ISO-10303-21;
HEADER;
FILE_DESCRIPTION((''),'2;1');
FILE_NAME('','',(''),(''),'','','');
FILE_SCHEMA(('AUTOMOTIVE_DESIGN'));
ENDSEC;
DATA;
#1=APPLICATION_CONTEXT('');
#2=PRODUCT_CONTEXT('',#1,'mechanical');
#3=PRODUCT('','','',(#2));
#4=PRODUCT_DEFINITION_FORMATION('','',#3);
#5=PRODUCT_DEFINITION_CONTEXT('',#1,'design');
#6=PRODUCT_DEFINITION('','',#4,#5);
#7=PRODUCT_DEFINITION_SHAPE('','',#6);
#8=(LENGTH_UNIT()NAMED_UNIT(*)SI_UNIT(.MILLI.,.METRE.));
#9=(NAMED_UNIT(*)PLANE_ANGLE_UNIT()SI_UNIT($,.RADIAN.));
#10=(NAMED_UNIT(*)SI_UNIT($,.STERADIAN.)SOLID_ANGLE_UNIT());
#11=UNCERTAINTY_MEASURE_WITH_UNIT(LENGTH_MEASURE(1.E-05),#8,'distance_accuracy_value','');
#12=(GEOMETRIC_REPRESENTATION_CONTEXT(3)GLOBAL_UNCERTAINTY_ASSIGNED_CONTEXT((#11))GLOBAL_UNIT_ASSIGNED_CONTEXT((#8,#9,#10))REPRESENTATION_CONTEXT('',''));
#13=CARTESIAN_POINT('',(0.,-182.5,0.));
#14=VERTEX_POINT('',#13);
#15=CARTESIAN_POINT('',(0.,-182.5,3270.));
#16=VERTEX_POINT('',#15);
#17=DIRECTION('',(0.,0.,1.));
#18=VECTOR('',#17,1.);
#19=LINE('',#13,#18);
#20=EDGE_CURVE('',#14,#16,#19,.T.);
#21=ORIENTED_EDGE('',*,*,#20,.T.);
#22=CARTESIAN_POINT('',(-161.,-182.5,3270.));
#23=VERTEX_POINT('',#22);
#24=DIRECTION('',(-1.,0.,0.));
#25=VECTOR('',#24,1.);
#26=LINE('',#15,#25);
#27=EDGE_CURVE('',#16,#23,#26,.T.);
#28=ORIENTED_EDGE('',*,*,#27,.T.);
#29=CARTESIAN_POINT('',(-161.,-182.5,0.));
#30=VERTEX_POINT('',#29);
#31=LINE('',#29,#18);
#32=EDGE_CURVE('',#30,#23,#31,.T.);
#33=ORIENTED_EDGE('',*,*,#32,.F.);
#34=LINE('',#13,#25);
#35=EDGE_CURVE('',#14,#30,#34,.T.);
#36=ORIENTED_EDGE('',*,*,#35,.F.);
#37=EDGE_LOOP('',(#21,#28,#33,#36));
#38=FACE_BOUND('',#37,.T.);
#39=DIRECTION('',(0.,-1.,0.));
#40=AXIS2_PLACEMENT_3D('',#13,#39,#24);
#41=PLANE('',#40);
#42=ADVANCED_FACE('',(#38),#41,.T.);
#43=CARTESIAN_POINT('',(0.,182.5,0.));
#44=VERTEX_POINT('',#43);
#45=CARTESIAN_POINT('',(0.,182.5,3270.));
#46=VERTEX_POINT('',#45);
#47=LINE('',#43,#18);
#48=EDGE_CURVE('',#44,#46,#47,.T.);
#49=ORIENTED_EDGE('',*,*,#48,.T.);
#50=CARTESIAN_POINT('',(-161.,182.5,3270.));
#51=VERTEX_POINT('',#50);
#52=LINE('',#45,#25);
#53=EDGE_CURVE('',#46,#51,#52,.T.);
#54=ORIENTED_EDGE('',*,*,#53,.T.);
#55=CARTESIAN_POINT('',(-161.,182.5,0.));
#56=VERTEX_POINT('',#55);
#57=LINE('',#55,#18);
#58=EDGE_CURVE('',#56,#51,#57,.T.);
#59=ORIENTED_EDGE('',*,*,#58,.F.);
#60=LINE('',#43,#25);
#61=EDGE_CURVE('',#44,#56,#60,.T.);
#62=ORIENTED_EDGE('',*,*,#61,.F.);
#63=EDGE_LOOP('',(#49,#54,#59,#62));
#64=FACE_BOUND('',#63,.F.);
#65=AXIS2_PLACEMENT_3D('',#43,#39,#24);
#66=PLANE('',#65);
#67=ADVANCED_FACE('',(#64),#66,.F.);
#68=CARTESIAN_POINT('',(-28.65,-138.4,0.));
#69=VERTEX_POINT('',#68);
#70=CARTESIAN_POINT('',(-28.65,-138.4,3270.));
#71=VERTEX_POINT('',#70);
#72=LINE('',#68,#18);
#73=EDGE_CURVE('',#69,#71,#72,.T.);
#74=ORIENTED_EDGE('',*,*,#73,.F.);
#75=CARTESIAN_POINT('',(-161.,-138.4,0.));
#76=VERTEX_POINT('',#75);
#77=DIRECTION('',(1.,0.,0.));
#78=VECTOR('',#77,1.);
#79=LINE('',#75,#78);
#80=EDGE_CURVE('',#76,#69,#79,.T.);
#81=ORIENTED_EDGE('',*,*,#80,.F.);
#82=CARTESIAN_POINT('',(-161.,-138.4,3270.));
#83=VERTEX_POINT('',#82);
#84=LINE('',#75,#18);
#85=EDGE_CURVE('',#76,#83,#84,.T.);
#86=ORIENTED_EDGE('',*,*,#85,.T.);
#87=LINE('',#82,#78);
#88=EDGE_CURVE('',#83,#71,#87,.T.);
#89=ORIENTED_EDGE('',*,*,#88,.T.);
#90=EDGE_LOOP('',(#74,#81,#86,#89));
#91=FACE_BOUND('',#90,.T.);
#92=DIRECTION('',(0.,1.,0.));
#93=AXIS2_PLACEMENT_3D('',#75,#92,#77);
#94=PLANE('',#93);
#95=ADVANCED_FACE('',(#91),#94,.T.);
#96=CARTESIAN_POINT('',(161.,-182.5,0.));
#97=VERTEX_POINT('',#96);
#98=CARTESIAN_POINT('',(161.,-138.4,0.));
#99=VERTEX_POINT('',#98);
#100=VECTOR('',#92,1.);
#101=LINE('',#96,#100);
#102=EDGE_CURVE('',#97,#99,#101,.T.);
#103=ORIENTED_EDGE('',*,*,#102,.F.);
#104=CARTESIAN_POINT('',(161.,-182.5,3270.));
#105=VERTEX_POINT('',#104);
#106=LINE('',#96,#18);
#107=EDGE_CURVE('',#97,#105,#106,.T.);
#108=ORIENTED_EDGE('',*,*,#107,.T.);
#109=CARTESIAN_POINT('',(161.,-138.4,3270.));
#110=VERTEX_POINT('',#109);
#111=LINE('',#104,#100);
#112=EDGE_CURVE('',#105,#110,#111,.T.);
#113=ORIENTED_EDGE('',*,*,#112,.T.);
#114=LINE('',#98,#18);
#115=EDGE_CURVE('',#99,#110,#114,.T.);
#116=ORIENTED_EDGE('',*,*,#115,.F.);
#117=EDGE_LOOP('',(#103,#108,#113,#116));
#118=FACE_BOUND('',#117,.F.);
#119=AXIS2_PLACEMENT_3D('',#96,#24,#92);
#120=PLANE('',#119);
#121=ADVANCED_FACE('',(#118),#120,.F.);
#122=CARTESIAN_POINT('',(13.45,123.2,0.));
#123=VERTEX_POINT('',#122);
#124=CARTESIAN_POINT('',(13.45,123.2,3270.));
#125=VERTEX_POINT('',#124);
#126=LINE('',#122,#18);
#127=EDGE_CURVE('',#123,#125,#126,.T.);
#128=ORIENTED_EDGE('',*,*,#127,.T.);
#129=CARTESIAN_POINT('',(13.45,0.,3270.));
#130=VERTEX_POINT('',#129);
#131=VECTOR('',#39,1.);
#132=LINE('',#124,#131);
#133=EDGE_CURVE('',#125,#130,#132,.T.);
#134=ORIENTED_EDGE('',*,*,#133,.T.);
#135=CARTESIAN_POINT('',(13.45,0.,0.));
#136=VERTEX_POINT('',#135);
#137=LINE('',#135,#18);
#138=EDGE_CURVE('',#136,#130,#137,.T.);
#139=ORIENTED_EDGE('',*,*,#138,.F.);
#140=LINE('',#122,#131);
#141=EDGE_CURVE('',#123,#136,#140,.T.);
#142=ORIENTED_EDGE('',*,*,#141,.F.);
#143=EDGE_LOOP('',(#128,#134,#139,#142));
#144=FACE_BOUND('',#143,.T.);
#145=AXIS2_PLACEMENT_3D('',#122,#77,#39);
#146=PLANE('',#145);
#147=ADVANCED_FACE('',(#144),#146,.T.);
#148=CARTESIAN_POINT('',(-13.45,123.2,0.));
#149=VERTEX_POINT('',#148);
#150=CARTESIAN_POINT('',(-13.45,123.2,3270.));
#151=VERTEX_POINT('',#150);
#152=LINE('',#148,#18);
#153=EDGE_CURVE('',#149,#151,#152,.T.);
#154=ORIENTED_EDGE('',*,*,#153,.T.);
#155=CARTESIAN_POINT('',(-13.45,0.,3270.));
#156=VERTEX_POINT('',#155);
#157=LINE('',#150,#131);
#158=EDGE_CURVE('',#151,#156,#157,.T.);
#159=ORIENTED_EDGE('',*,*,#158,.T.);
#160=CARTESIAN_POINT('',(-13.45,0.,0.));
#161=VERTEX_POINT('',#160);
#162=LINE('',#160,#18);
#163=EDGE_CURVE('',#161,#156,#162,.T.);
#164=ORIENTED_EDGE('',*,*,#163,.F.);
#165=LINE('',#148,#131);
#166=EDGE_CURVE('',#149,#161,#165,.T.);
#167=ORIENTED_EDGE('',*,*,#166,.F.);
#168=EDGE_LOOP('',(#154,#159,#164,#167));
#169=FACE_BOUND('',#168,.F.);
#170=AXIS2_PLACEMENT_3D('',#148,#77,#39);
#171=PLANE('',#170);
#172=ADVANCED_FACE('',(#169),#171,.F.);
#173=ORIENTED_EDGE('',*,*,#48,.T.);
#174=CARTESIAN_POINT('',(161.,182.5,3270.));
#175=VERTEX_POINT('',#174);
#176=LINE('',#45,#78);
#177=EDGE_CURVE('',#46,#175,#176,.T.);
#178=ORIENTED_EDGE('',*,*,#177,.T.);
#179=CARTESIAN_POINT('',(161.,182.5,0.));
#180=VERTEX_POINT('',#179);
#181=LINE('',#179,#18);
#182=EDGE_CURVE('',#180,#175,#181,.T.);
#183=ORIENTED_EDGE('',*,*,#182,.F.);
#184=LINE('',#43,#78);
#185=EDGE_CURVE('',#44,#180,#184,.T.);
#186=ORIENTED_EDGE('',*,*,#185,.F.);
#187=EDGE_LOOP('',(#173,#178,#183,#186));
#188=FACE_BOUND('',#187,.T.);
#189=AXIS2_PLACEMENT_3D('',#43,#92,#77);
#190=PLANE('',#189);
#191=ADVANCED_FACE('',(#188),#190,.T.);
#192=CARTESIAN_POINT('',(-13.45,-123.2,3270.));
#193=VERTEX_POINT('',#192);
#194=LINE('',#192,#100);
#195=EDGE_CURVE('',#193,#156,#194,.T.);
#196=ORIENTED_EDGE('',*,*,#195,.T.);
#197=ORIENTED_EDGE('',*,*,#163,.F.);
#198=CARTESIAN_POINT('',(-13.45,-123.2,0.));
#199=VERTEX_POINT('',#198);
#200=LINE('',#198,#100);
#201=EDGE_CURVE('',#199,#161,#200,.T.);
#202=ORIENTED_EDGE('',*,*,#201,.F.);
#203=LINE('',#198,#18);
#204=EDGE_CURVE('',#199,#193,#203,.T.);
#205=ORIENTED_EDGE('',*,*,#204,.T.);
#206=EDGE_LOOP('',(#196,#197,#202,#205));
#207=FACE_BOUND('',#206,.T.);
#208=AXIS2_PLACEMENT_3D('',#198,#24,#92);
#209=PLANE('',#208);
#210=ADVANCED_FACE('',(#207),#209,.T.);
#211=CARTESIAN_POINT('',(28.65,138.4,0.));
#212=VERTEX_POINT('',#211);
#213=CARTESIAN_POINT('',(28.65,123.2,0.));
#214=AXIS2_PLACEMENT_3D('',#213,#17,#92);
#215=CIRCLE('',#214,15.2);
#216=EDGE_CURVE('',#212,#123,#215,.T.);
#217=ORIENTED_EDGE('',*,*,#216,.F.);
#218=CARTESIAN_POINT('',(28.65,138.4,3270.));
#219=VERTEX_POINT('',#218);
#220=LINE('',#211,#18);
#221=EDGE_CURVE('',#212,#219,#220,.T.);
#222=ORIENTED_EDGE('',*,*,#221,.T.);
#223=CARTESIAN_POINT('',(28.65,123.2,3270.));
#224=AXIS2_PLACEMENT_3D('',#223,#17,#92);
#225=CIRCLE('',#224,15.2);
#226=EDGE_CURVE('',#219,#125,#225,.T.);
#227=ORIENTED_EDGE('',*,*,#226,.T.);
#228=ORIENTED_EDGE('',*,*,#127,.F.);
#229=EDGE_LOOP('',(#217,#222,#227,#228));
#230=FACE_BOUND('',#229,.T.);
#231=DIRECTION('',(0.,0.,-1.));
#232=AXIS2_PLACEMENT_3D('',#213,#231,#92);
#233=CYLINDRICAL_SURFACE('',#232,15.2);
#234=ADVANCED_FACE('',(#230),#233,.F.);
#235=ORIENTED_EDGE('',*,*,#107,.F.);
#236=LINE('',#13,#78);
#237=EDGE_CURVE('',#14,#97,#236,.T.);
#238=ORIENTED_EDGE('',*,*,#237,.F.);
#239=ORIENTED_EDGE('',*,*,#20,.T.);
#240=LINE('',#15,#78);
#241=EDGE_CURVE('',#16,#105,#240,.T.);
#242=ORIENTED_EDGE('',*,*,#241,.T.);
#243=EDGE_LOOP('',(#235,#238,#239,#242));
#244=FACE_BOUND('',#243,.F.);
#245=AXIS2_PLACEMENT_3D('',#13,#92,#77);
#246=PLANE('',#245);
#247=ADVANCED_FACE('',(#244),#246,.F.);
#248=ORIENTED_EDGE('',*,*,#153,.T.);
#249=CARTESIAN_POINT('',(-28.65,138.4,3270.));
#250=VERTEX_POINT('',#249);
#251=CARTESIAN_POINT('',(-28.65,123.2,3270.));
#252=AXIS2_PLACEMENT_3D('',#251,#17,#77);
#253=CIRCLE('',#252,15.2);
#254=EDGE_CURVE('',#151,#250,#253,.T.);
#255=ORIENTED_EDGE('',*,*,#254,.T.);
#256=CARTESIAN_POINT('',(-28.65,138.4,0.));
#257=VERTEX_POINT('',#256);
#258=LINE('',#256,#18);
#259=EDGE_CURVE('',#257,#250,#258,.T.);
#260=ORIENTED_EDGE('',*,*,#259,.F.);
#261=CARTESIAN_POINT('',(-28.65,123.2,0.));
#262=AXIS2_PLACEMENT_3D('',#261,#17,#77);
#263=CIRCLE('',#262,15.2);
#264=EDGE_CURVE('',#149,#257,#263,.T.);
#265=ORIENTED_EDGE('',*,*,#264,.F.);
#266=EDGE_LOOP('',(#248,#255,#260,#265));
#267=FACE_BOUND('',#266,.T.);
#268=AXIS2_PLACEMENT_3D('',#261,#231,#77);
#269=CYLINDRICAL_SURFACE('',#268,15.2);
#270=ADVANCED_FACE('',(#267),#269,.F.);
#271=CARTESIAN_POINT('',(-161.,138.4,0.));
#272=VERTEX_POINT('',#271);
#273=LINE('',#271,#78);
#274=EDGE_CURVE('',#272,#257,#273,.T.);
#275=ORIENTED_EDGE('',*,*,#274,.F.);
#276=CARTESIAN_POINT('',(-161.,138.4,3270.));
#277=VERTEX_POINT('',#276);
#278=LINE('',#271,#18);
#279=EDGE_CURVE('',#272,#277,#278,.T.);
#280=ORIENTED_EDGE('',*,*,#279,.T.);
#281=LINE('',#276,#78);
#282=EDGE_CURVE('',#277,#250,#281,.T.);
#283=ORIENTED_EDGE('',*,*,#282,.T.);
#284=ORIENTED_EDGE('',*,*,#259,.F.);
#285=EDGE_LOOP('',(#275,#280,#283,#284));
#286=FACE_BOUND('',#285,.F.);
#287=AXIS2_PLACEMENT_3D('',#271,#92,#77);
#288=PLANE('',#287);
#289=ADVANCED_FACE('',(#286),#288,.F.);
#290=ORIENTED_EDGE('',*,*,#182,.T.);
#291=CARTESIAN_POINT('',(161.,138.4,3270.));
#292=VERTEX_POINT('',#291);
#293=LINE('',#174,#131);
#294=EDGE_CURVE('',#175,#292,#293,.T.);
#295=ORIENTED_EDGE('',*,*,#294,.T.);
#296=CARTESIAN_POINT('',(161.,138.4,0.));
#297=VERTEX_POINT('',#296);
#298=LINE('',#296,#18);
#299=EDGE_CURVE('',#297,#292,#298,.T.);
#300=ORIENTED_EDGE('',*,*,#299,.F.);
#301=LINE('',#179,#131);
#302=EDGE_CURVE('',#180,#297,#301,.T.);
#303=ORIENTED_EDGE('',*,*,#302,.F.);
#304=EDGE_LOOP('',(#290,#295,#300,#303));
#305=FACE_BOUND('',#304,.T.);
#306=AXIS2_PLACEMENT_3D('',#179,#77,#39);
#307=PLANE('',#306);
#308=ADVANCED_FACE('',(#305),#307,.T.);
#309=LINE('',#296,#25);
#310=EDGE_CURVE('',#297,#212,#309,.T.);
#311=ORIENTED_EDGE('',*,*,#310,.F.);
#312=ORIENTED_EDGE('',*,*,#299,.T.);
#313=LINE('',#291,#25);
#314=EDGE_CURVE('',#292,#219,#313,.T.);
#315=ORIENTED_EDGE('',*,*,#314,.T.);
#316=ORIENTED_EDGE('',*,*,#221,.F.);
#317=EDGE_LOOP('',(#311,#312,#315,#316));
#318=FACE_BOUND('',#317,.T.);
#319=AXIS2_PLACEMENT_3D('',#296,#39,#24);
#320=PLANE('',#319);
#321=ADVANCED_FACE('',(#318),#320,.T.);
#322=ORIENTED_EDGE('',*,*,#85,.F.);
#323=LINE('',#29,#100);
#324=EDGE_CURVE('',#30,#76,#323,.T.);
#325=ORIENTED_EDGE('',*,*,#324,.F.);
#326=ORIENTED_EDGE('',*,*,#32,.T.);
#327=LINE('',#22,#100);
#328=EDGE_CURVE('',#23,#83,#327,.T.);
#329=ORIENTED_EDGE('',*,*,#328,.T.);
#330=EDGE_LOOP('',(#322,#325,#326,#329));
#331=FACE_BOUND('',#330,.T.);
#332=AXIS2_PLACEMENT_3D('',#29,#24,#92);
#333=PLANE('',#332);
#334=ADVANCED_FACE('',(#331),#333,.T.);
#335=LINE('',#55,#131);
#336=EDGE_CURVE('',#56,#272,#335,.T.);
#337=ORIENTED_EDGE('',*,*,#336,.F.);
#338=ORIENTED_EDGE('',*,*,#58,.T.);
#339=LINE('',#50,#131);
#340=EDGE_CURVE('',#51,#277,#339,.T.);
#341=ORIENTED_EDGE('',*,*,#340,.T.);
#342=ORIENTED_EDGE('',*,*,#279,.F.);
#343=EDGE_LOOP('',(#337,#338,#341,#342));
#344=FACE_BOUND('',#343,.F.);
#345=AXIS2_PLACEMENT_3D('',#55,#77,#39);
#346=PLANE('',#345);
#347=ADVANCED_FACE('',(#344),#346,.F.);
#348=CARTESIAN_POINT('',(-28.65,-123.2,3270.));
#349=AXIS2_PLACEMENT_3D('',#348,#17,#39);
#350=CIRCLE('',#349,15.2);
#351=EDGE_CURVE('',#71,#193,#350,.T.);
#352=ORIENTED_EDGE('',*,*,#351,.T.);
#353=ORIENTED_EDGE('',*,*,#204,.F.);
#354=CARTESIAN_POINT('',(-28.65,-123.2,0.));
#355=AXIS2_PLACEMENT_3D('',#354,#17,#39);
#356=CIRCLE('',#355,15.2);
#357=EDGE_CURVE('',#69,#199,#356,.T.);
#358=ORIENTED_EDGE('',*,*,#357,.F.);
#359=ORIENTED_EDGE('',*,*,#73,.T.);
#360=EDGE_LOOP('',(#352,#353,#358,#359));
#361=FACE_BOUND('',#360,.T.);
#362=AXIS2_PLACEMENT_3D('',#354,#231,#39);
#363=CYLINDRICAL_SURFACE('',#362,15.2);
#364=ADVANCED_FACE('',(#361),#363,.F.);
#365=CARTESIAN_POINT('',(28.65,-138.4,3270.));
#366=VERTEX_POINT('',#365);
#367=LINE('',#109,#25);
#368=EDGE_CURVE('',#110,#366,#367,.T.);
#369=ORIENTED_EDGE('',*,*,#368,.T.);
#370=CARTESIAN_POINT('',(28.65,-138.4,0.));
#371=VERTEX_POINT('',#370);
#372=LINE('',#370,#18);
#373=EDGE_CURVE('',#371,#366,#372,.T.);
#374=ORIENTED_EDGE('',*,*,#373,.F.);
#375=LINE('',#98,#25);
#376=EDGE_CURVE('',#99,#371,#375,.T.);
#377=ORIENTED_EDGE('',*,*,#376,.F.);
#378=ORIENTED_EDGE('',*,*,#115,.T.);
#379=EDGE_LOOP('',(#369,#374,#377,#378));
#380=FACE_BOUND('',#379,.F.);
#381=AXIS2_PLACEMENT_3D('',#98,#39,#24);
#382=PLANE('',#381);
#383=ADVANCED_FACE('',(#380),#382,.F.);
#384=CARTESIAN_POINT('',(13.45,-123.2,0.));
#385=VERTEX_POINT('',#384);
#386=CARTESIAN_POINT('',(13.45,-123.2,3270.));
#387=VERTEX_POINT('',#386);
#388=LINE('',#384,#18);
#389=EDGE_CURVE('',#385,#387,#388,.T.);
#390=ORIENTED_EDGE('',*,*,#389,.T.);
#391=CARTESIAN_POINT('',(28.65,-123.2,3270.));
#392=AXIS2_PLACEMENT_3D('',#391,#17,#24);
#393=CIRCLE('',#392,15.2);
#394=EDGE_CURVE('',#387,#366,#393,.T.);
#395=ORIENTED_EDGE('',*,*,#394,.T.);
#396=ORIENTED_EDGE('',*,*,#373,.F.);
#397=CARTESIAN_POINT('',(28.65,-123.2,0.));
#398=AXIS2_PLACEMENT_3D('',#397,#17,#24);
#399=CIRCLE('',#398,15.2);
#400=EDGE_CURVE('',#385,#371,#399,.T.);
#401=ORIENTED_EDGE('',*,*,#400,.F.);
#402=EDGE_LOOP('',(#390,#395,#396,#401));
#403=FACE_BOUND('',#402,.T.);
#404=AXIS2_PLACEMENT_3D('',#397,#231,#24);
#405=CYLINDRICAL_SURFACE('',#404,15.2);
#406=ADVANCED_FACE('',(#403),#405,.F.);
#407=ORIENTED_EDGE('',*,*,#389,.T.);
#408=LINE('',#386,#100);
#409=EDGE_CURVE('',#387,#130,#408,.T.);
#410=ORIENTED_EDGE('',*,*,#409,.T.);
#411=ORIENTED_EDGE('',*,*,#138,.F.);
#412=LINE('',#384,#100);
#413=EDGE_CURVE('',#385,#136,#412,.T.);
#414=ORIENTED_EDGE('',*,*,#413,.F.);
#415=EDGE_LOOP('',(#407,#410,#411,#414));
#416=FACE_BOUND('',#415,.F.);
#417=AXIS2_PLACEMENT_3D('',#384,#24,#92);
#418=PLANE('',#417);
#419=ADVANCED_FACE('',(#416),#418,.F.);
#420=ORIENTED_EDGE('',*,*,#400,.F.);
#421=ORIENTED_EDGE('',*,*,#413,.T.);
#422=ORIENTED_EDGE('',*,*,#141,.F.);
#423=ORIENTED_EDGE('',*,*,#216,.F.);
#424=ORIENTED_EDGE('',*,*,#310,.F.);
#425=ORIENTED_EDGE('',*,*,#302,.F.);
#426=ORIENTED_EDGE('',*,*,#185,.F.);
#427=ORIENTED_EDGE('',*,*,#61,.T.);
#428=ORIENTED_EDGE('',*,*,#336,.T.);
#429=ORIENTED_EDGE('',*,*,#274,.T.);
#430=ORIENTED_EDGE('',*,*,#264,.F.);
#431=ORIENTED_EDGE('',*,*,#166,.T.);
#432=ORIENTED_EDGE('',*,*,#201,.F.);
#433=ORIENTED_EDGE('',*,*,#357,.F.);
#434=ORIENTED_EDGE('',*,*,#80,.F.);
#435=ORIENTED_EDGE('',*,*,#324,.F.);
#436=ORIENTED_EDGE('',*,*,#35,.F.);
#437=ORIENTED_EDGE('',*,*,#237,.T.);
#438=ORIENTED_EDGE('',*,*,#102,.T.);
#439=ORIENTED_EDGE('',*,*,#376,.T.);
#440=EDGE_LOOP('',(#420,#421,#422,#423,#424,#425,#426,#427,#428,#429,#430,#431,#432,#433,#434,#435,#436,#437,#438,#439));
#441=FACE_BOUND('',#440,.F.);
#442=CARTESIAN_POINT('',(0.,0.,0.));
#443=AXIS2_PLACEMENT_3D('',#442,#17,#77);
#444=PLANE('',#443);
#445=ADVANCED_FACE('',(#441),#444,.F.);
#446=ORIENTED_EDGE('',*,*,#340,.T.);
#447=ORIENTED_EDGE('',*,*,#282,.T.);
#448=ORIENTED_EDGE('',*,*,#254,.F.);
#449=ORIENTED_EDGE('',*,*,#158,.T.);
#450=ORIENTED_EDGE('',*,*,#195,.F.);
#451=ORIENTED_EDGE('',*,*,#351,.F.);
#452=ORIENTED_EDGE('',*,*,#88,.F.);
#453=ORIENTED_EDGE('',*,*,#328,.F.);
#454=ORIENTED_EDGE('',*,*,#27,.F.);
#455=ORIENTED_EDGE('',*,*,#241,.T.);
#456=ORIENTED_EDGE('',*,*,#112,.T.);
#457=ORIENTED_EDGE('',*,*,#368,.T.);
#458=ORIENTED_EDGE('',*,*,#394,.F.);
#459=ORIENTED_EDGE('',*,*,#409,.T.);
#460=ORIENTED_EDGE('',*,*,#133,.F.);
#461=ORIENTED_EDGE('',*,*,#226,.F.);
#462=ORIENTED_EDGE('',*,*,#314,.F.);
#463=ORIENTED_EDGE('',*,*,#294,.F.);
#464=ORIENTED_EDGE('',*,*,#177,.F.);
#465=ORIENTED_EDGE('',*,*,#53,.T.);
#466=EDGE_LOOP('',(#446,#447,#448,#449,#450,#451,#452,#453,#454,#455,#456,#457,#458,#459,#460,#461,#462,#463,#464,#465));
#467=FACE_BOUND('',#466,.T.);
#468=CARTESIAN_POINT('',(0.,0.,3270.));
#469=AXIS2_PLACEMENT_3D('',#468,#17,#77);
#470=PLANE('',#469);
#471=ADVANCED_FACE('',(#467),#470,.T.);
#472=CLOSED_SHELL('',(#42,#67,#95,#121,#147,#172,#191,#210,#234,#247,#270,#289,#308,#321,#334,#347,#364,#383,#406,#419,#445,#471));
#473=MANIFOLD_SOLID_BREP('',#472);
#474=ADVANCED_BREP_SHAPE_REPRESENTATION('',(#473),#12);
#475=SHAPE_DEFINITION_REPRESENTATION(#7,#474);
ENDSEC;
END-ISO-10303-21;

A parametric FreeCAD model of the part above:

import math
import FreeCAD as App
import Part
import Sketcher

doc = App.newDocument("Part")
params = doc.addObject("Spreadsheet::Sheet", "Params")
for row, (alias, value) in enumerate([
    ("sketch1_radius", "15.2 mm"),
    ("sketch1_height", "44.1 mm"),
    ("pad1_length", "3270 mm"),
], start=1):
    params.set(f"A{row}", alias)
    params.set(f"B{row}", "=" + value)
    params.setAlias(f"B{row}", alias)

body = doc.addObject("PartDesign::Body", "Body")

# Sketch on XY plane
sketch1 = doc.addObject("Sketcher::SketchObject", "Sketch")
body.addObject(sketch1)
sketch1.AttachmentSupport = (doc.XY_Plane, [""])
sketch1.MapMode = "FlatFace"
sketch1.addGeometry([
    Part.LineSegment(App.Vector(-161, -138, 0), App.Vector(-161, -182, 0)),  # 0
    Part.LineSegment(App.Vector(-161, -182, 0), App.Vector(161, -182, 0)),  # 1
    Part.LineSegment(App.Vector(161, -182, 0), App.Vector(161, -138, 0)),  # 2
    Part.LineSegment(App.Vector(161, -138, 0), App.Vector(29, -138, 0)),  # 3
    Part.ArcOfCircle(Part.Circle(App.Vector(29, -123, 0), App.Vector(0, 0, 1), 15), math.radians(180), math.radians(270)),  # 4
    Part.LineSegment(App.Vector(13, -123, 0), App.Vector(13, 123, 0)),  # 5
    Part.ArcOfCircle(Part.Circle(App.Vector(29, 123, 0), App.Vector(0, 0, 1), 15), math.radians(90), math.radians(180)),  # 6
    Part.LineSegment(App.Vector(29, 138, 0), App.Vector(161, 138, 0)),  # 7
    Part.LineSegment(App.Vector(161, 138, 0), App.Vector(161, 182, 0)),  # 8
    Part.LineSegment(App.Vector(161, 182, 0), App.Vector(-161, 182, 0)),  # 9
    Part.LineSegment(App.Vector(-161, 182, 0), App.Vector(-161, 138, 0)),  # 10
    Part.LineSegment(App.Vector(-161, 138, 0), App.Vector(-29, 138, 0)),  # 11
    Part.ArcOfCircle(Part.Circle(App.Vector(-29, 123, 0), App.Vector(0, 0, 1), 15), math.radians(0), math.radians(90)),  # 12
    Part.LineSegment(App.Vector(-13, 123, 0), App.Vector(-13, -123, 0)),  # 13
    Part.ArcOfCircle(Part.Circle(App.Vector(-29, -123, 0), App.Vector(0, 0, 1), 15), math.radians(-90), math.radians(0)),  # 14
    Part.LineSegment(App.Vector(-29, -138, 0), App.Vector(-161, -138, 0)),  # 15
], False)
sketch1.addConstraint([
    Sketcher.Constraint("Coincident", 0, 2, 1, 1),
    Sketcher.Constraint("Coincident", 1, 2, 2, 1),
    Sketcher.Constraint("Coincident", 2, 2, 3, 1),
    Sketcher.Constraint("Tangent", 3, 2, 4, 2),
    Sketcher.Constraint("Tangent", 4, 1, 5, 1),
    Sketcher.Constraint("Tangent", 5, 2, 6, 2),
    Sketcher.Constraint("Tangent", 6, 1, 7, 1),
    Sketcher.Constraint("Coincident", 7, 2, 8, 1),
    Sketcher.Constraint("Coincident", 8, 2, 9, 1),
    Sketcher.Constraint("Coincident", 9, 2, 10, 1),
    Sketcher.Constraint("Coincident", 10, 2, 11, 1),
    Sketcher.Constraint("Tangent", 11, 2, 12, 2),
    Sketcher.Constraint("Tangent", 12, 1, 13, 1),
    Sketcher.Constraint("Tangent", 13, 2, 14, 2),
    Sketcher.Constraint("Tangent", 14, 1, 15, 1),
    Sketcher.Constraint("Coincident", 15, 2, 0, 1),
    Sketcher.Constraint("Vertical", 0),
    Sketcher.Constraint("Horizontal", 1),
    Sketcher.Constraint("Vertical", 2),
    Sketcher.Constraint("Horizontal", 3),
    Sketcher.Constraint("Vertical", 5),
    Sketcher.Constraint("Horizontal", 7),
    Sketcher.Constraint("Vertical", 8),
    Sketcher.Constraint("Horizontal", 9),
    Sketcher.Constraint("Vertical", 10),
    Sketcher.Constraint("Horizontal", 11),
    Sketcher.Constraint("Vertical", 13),
    Sketcher.Constraint("Horizontal", 15),
    Sketcher.Constraint("Equal", 4, 6),
    Sketcher.Constraint("Equal", 6, 12),
    Sketcher.Constraint("Equal", 12, 14),
    Sketcher.Constraint("Symmetric", 4, 3, 12, 3, -1, 1),
    Sketcher.Constraint("Symmetric", 0, 2, 8, 2, -1, 1),
    Sketcher.Constraint("Symmetric", 7, 2, 10, 2, -2),
    Sketcher.Constraint("Symmetric", 2, 2, 15, 2, -2),
    Sketcher.Constraint("Radius", 4, 15.2),
    Sketcher.Constraint("DistanceY", 0, 2, 0, 1, 44.1),
    Sketcher.Constraint("DistanceX", 0, 2, -1, 1, 161.0),
    Sketcher.Constraint("DistanceY", 0, 2, -1, 1, 182.5),
    Sketcher.Constraint("DistanceX", -1, 1, 4, 1, 13.45),
])
sketch1.setExpression("Constraints[35]", "Params.sketch1_radius")
sketch1.setExpression("Constraints[36]", "Params.sketch1_height")
pad1 = doc.addObject("PartDesign::Pad", "Pad")
body.addObject(pad1)
pad1.Profile = sketch1
pad1.setExpression("Length", "Params.pad1_length")

doc.recompute()
